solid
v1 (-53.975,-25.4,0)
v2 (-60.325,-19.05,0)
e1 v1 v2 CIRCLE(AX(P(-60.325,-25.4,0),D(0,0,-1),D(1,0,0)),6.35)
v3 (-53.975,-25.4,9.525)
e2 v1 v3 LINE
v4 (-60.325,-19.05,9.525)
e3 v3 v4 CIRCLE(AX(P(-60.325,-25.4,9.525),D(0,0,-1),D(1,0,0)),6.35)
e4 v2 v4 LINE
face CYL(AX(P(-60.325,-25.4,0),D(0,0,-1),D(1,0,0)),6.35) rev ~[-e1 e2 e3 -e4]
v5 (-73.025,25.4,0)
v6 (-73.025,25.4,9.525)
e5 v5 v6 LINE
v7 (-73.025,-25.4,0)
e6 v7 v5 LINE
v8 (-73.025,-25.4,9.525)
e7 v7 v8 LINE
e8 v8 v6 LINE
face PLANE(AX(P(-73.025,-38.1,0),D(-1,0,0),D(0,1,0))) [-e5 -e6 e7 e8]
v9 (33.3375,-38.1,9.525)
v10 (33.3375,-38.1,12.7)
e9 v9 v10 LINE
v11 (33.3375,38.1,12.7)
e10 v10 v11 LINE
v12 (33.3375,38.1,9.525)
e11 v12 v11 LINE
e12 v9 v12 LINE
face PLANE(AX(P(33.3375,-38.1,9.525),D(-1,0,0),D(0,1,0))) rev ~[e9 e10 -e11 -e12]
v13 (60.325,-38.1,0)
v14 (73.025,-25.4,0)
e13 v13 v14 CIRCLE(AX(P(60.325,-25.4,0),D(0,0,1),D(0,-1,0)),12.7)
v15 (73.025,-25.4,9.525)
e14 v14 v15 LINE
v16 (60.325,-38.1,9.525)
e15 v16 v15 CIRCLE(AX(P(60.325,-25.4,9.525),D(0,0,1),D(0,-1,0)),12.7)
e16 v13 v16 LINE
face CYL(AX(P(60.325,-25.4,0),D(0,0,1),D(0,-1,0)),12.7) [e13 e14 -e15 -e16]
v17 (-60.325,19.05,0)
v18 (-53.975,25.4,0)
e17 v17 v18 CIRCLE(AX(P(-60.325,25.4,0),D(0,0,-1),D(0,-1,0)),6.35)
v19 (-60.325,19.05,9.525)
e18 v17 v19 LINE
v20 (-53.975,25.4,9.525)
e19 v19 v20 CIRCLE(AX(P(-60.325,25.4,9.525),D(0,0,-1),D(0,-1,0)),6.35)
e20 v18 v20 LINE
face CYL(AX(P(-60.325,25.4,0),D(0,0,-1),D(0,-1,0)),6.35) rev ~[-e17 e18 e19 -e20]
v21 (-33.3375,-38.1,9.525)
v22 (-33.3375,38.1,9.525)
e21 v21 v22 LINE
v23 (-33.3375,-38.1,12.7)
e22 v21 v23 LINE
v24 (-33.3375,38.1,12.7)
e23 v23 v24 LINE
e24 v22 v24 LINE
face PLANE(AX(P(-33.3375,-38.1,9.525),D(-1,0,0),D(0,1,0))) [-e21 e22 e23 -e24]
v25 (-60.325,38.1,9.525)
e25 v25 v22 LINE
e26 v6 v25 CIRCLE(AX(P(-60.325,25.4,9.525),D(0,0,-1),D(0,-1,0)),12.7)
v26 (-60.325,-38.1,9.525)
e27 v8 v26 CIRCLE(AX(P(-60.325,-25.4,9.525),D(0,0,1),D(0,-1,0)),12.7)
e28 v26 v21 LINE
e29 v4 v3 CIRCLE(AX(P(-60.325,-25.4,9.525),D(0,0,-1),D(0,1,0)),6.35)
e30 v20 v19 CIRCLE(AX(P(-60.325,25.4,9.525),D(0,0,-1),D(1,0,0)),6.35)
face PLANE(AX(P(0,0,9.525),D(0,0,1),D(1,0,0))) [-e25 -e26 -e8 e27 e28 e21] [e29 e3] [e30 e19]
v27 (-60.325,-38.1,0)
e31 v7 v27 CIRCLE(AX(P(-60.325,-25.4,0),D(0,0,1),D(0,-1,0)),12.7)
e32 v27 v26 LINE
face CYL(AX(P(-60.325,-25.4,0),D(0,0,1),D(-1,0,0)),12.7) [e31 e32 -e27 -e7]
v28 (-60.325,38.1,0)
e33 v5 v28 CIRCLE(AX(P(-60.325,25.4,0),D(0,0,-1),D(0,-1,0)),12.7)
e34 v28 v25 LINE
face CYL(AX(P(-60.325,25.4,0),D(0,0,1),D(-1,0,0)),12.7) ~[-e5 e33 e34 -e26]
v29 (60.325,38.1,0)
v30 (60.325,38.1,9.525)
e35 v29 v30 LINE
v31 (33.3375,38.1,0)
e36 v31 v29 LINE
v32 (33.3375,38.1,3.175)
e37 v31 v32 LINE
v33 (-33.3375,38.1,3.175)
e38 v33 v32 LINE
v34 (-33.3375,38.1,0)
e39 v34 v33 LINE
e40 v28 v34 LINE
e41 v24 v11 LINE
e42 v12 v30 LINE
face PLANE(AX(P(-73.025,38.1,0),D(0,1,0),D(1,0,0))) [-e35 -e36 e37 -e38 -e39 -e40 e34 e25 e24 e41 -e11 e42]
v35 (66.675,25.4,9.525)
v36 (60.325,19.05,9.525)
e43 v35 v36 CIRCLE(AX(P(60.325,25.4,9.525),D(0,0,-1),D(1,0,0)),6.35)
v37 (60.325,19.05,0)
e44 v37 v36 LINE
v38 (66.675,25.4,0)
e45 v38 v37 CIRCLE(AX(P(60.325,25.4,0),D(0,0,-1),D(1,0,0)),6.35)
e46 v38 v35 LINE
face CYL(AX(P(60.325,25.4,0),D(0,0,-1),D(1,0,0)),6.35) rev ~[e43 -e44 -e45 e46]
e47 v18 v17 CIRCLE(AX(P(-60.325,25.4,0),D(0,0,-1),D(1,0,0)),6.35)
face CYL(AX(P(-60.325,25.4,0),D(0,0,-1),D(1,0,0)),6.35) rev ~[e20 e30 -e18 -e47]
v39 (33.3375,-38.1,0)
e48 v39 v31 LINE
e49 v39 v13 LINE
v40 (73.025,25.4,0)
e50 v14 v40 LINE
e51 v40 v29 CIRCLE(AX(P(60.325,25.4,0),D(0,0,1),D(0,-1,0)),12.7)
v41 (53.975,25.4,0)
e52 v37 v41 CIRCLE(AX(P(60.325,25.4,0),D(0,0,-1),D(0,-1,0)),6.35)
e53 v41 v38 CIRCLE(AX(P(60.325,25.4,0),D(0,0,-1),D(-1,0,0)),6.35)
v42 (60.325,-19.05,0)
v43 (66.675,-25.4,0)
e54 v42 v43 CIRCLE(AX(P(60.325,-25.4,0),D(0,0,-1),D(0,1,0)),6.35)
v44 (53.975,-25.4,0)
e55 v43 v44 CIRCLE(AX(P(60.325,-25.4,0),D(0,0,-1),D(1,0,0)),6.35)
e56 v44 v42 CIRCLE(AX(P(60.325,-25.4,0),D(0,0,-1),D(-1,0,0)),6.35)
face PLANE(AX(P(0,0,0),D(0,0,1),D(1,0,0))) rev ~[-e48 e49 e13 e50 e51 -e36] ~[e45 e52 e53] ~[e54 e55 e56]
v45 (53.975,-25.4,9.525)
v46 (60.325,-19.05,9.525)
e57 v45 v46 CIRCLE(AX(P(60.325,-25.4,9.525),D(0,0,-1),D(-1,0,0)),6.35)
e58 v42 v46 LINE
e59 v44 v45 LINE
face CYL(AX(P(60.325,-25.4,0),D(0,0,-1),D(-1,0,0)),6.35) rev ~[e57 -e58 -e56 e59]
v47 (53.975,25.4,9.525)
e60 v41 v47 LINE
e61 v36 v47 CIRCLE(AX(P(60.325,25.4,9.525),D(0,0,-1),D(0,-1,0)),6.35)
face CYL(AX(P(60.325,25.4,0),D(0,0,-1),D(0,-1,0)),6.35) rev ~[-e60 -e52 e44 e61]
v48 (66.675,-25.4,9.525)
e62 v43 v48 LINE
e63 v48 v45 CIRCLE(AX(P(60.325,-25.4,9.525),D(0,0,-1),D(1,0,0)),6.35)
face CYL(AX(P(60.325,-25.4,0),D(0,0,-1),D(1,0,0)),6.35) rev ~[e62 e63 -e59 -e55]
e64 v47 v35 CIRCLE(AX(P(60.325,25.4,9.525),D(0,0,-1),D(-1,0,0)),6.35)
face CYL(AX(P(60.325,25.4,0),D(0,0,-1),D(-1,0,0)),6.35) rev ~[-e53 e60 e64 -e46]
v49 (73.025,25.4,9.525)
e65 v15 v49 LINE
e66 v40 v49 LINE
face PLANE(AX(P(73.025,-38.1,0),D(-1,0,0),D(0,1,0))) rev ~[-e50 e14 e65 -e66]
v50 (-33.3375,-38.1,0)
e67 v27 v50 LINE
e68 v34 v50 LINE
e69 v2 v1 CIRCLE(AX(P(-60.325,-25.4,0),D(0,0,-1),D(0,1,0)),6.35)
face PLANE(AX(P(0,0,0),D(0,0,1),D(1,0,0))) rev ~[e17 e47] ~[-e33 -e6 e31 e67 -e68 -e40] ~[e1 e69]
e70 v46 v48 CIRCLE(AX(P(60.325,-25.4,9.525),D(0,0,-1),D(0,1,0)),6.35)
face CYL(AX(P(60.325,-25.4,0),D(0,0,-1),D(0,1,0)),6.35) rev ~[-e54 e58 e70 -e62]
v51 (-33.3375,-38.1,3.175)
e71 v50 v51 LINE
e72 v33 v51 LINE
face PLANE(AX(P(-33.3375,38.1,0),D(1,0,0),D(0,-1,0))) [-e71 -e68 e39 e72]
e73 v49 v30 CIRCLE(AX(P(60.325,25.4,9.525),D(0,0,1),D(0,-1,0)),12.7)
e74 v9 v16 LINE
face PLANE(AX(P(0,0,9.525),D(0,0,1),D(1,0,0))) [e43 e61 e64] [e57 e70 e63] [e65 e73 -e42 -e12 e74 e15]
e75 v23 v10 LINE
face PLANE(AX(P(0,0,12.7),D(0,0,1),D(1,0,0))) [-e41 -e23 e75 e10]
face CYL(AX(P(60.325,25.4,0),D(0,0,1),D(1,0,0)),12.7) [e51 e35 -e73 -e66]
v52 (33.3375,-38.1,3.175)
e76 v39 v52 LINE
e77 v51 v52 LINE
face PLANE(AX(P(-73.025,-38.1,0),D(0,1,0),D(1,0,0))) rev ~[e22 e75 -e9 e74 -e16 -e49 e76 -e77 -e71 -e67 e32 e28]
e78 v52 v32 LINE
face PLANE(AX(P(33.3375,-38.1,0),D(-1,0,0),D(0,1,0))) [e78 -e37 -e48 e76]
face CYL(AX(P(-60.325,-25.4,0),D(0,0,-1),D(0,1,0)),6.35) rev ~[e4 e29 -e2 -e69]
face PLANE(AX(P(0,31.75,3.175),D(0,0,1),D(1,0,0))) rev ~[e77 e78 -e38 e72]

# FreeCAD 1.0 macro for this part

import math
import FreeCAD as App
import Part
import Sketcher
Q = App.Units.Quantity


def edges_at(feature, points):
    """Names of the edges that pass closest to the given points."""
    edges = feature.Shape.Edges
    near = lambda p: min(range(len(edges)), key=lambda i: edges[i].distToShape(Part.Vertex(*p))[0])
    return sorted({f"Edge{near(p) + 1}" for p in points})

doc = App.newDocument("Part")
body = doc.addObject("PartDesign::Body", "Body")

# Sketch on XY plane
sketch1 = body.newObject("Sketcher::SketchObject", "Sketch")
sketch1.AttachmentSupport = (doc.getObject("XY_Plane"), [""])
sketch1.MapMode = "FlatFace"
sketch1.addGeometry([
    Part.LineSegment(App.Vector(-73, 38, 0), App.Vector(-73, -38, 0)),  # 0
    Part.LineSegment(App.Vector(-73, -38, 0), App.Vector(73, -38, 0)),  # 1
    Part.LineSegment(App.Vector(73, -38, 0), App.Vector(73, 38, 0)),  # 2
    Part.LineSegment(App.Vector(73, 38, 0), App.Vector(-73, 38, 0)),  # 3
    Part.ArcOfCircle(Part.Circle(App.Vector(-60, -25, 0), App.Vector(0, 0, 1), 6), math.radians(90), math.radians(360)),  # 4
    Part.ArcOfCircle(Part.Circle(App.Vector(-60, -25, 0), App.Vector(0, 0, 1), 6), math.radians(0), math.radians(90)),  # 5
    Part.ArcOfCircle(Part.Circle(App.Vector(60, -25, 0), App.Vector(0, 0, 1), 6), math.radians(180), math.radians(360)),  # 6
    Part.ArcOfCircle(Part.Circle(App.Vector(60, -25, 0), App.Vector(0, 0, 1), 6), math.radians(90), math.radians(180)),  # 7
    Part.ArcOfCircle(Part.Circle(App.Vector(60, -25, 0), App.Vector(0, 0, 1), 6), math.radians(0), math.radians(90)),  # 8
    Part.ArcOfCircle(Part.Circle(App.Vector(60, 25, 0), App.Vector(0, 0, 1), 6), math.radians(-90), math.radians(0)),  # 9
    Part.ArcOfCircle(Part.Circle(App.Vector(60, 25, 0), App.Vector(0, 0, 1), 6), math.radians(180), math.radians(270)),  # 10
    Part.ArcOfCircle(Part.Circle(App.Vector(60, 25, 0), App.Vector(0, 0, 1), 6), math.radians(0), math.radians(180)),  # 11
    Part.ArcOfCircle(Part.Circle(App.Vector(-60, 25, 0), App.Vector(0, 0, 1), 6), math.radians(0), math.radians(270)),  # 12
    Part.ArcOfCircle(Part.Circle(App.Vector(-60, 25, 0), App.Vector(0, 0, 1), 6), math.radians(-90), math.radians(0)),  # 13
], False)
sketch1.addConstraint([
    Sketcher.Constraint("Coincident", 0, 2, 1, 1),
    Sketcher.Constraint("Coincident", 1, 2, 2, 1),
    Sketcher.Constraint("Coincident", 2, 2, 3, 1),
    Sketcher.Constraint("Coincident", 3, 2, 0, 1),
    Sketcher.Constraint("Tangent", 4, 1, 5, 2),
    Sketcher.Constraint("Coincident", 5, 1, 4, 2),
    Sketcher.Constraint("Tangent", 6, 1, 7, 2),
    Sketcher.Constraint("Tangent", 7, 1, 8, 2),
    Sketcher.Constraint("Tangent", 8, 1, 6, 2),
    Sketcher.Constraint("Tangent", 9, 1, 10, 2),
    Sketcher.Constraint("Tangent", 10, 1, 11, 2),
    Sketcher.Constraint("Tangent", 11, 1, 9, 2),
    Sketcher.Constraint("Tangent", 12, 1, 13, 2),
    Sketcher.Constraint("Coincident", 13, 1, 12, 2),
    Sketcher.Constraint("Vertical", 0),
    Sketcher.Constraint("Horizontal", 1),
    Sketcher.Constraint("Vertical", 2),
    Sketcher.Constraint("Horizontal", 3),
    Sketcher.Constraint("Equal", 5, 6),
    Sketcher.Constraint("Equal", 8, 9),
    Sketcher.Constraint("Equal", 11, 12),
    Sketcher.Constraint("Symmetric", 4, 3, 9, 3, -1, 1),
    Sketcher.Constraint("Symmetric", 6, 3, 12, 3, -1, 1),
    Sketcher.Constraint("Symmetric", 0, 2, 2, 2, -1, 1),
    Sketcher.Constraint("Symmetric", 4, 3, 6, 3, -2),
    Sketcher.Constraint("Horizontal", 8, 3, 5, 1),
    Sketcher.Constraint("Horizontal", 5, 1, 6, 1),
    Sketcher.Constraint("Horizontal", 6, 1, 8, 1),
    Sketcher.Constraint("Horizontal", 13, 3, 10, 1),
    Sketcher.Constraint("Horizontal", 10, 1, 11, 1),
    Sketcher.Constraint("Horizontal", 11, 1, 12, 1),
    Sketcher.Constraint("Vertical", 13, 3, 4, 1),
    Sketcher.Constraint("Vertical", 11, 3, 7, 1),
    Sketcher.Constraint("Vertical", 7, 1, 9, 1),
    Sketcher.Constraint("Vertical", 4, 1, 13, 1),
    Sketcher.Constraint("DistanceY", 0, 2, 0, 1, Q("3 in")),
    Sketcher.Constraint("Radius", 4, Q("0.25 in")),
    Sketcher.Constraint("DistanceY", 4, 3, -1, 1, Q("1 in")),
    Sketcher.Constraint("DistanceX", 1, 1, 1, 2, Q("5.75 in")),
    Sketcher.Constraint("DistanceX", 0, 2, 4, 3, Q("0.5 in")),
])
pad1 = body.newObject("PartDesign::Pad", "Pad")
pad1.Profile = sketch1
pad1.Length = Q("0.375 in")
doc.recompute()

fillet = body.newObject("PartDesign::Fillet", "Fillet")
fillet.Base = (pad1, edges_at(pad1, [
    (-73.025, -38.1, 4.763),
    (-73.025, 38.1, 4.763),
    (73.025, 38.1, 4.763),
    (73.025, -38.1, 4.763),
]))
fillet.Radius = Q("0.5 in")

# Sketch on XY plane
sketch2 = body.newObject("Sketcher::SketchObject", "Sketch001")
sketch2.AttachmentSupport = (doc.getObject("XY_Plane"), [""])
sketch2.MapMode = "FlatFace"
sketch2.AttachmentOffset = App.Placement(App.Vector(0, 0, 0.375 * 25.4), App.Rotation())
sketch2.addGeometry([
    Part.LineSegment(App.Vector(-33, 38, 0), App.Vector(-33, -38, 0)),
    Part.LineSegment(App.Vector(-33, -38, 0), App.Vector(33, -38, 0)),
    Part.LineSegment(App.Vector(33, -38, 0), App.Vector(33, 38, 0)),
    Part.LineSegment(App.Vector(33, 38, 0), App.Vector(-33, 38, 0)),
], False)
sketch2.addConstraint([
    Sketcher.Constraint("Coincident", 0, 2, 1, 1),
    Sketcher.Constraint("Coincident", 1, 2, 2, 1),
    Sketcher.Constraint("Coincident", 2, 2, 3, 1),
    Sketcher.Constraint("Coincident", 3, 2, 0, 1),
    Sketcher.Constraint("Vertical", 0),
    Sketcher.Constraint("Horizontal", 1),
    Sketcher.Constraint("Vertical", 2),
    Sketcher.Constraint("Horizontal", 3),
    Sketcher.Constraint("Symmetric", 0, 2, 2, 2, -1, 1),
    Sketcher.Constraint("DistanceY", 0, 2, 0, 1, Q("3 in")),
    Sketcher.Constraint("DistanceX", 1, 1, 1, 2, Q("2.625 in")),
])
pad2 = body.newObject("PartDesign::Pad", "Pad001")
pad2.Profile = sketch2
pad2.Length = Q("0.125 in")

# Sketch on XY plane
sketch3 = body.newObject("Sketcher::SketchObject", "Sketch002")
sketch3.AttachmentSupport = (doc.getObject("XY_Plane"), [""])
sketch3.MapMode = "FlatFace"
sketch3.addGeometry([
    Part.LineSegment(App.Vector(-33, 38, 0), App.Vector(-33, -38, 0)),
    Part.LineSegment(App.Vector(-33, -38, 0), App.Vector(33, -38, 0)),
    Part.LineSegment(App.Vector(33, -38, 0), App.Vector(33, 38, 0)),
    Part.LineSegment(App.Vector(33, 38, 0), App.Vector(-33, 38, 0)),
], False)
sketch3.addConstraint([
    Sketcher.Constraint("Coincident", 0, 2, 1, 1),
    Sketcher.Constraint("Coincident", 1, 2, 2, 1),
    Sketcher.Constraint("Coincident", 2, 2, 3, 1),
    Sketcher.Constraint("Coincident", 3, 2, 0, 1),
    Sketcher.Constraint("Vertical", 0),
    Sketcher.Constraint("Horizontal", 1),
    Sketcher.Constraint("Vertical", 2),
    Sketcher.Constraint("Horizontal", 3),
    Sketcher.Constraint("Symmetric", 0, 2, 2, 2, -1, 1),
    Sketcher.Constraint("DistanceY", 0, 2, 0, 1, Q("3 in")),
    Sketcher.Constraint("DistanceX", 1, 1, 1, 2, Q("2.625 in")),
])
pocket1 = body.newObject("PartDesign::Pocket", "Pocket")
pocket1.Profile = sketch3
pocket1.Length = Q("0.125 in")
pocket1.Reversed = True

doc.recompute()
